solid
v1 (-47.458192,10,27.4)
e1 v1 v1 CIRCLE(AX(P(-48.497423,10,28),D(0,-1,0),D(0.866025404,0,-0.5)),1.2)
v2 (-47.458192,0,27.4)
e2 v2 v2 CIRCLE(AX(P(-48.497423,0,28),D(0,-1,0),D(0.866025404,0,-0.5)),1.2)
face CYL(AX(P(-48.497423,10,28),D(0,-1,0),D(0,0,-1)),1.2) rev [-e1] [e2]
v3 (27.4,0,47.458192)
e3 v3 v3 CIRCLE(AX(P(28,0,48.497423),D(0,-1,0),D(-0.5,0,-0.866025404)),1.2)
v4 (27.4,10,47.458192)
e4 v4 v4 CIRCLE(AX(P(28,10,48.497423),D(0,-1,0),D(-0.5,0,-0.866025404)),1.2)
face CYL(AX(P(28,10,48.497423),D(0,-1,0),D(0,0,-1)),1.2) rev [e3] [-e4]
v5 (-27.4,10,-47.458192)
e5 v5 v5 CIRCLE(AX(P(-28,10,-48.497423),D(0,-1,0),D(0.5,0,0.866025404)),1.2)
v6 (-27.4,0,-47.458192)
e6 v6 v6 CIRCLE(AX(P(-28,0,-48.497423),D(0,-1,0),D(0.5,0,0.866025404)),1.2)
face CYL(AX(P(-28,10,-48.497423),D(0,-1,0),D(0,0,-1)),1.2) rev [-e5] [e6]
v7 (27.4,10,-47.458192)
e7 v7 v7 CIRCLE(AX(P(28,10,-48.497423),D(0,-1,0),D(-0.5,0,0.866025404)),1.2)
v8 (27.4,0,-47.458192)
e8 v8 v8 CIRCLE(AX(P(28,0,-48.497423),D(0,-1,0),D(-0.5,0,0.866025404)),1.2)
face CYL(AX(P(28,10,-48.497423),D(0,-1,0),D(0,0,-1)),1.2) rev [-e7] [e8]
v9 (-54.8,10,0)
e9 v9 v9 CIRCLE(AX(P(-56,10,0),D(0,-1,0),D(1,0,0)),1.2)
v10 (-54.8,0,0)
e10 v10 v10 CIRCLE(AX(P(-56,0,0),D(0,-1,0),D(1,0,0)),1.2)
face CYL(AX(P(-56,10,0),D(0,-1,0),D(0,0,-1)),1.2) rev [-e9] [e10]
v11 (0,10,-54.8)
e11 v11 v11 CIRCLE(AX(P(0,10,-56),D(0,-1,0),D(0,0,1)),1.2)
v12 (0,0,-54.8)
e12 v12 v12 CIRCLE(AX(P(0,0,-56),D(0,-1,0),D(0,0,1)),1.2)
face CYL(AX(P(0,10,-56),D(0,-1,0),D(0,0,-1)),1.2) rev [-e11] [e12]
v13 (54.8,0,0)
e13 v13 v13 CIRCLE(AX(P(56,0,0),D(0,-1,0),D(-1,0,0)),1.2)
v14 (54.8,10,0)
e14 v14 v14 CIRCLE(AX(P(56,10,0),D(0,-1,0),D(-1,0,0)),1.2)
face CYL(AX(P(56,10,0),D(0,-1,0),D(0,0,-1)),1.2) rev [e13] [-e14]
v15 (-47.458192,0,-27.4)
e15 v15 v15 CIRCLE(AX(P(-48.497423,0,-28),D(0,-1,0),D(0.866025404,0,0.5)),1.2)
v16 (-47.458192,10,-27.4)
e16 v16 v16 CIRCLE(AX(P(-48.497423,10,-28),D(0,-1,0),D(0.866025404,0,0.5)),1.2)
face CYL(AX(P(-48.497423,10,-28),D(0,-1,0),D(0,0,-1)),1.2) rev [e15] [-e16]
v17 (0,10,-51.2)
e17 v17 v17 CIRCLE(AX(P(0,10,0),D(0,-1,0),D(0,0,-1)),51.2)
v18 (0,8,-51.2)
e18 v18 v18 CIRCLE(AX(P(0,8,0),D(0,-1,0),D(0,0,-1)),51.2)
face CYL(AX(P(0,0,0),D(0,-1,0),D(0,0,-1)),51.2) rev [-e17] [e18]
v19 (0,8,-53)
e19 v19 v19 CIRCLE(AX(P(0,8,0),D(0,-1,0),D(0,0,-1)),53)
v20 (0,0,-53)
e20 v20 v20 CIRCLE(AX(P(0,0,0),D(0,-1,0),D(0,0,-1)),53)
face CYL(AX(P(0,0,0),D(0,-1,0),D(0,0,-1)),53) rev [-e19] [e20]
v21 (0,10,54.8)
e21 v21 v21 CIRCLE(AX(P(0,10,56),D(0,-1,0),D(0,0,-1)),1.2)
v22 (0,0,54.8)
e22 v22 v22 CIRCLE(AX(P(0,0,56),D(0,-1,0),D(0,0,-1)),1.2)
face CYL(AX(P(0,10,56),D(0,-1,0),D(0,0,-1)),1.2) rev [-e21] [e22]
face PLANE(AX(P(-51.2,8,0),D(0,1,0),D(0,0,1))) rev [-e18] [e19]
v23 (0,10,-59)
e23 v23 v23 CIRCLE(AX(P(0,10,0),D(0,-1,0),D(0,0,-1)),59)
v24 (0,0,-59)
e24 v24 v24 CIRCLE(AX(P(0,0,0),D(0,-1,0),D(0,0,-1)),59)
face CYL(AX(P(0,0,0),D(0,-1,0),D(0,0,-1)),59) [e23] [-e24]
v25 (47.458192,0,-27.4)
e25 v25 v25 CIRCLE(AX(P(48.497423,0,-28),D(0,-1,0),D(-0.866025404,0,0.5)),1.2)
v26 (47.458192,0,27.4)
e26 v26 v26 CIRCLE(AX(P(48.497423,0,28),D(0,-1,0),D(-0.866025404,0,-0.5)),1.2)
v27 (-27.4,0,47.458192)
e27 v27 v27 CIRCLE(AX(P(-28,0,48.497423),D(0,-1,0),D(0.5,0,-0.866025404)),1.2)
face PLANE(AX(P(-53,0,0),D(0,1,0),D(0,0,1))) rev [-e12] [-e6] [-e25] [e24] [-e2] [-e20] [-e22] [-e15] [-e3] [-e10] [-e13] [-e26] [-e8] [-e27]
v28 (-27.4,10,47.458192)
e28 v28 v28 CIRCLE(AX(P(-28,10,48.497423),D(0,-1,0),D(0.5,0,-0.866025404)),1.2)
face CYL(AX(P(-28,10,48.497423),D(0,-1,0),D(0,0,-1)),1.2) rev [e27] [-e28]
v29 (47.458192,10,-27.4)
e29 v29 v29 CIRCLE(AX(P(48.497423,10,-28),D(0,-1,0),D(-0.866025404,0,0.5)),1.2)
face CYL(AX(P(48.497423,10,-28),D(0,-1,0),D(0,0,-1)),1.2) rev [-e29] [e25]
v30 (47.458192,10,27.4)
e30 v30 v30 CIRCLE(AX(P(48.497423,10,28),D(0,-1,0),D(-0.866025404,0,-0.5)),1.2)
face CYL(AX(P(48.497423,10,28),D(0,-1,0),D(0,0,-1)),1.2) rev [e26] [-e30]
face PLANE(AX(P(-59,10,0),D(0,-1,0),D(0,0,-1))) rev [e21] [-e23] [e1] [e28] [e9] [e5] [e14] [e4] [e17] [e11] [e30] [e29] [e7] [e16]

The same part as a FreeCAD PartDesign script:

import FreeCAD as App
import Part
import Sketcher
Q = App.Units.Quantity

doc = App.newDocument("Part")
body = doc.addObject("PartDesign::Body", "Body")

sketch1 = body.newObject("Sketcher::SketchObject", "Sketch")
sketch1.AttachmentSupport = (doc.getObject("XY_Plane"), [""])
sketch1.MapMode = "FlatFace"
sketch1.addGeometry([
    Part.LineSegment(App.Vector(-59, 0, 0), App.Vector(-53, 0, 0)),
    Part.LineSegment(App.Vector(-53, 0, 0), App.Vector(-53, 8, 0)),
    Part.LineSegment(App.Vector(-53, 8, 0), App.Vector(-51.2, 8, 0)),
    Part.LineSegment(App.Vector(-51.2, 8, 0), App.Vector(-51.2, 10, 0)),
    Part.LineSegment(App.Vector(-51.2, 10, 0), App.Vector(-59, 10, 0)),
    Part.LineSegment(App.Vector(-59, 10, 0), App.Vector(-59, 0, 0)),
], False)
sketch1.addConstraint([
    Sketcher.Constraint("Coincident", 0, 2, 1, 1),
    Sketcher.Constraint("Coincident", 1, 2, 2, 1),
    Sketcher.Constraint("Coincident", 2, 2, 3, 1),
    Sketcher.Constraint("Coincident", 3, 2, 4, 1),
    Sketcher.Constraint("Coincident", 4, 2, 5, 1),
    Sketcher.Constraint("Coincident", 5, 2, 0, 1),
    Sketcher.Constraint("Horizontal", 0),
    Sketcher.Constraint("Vertical", 1),
    Sketcher.Constraint("Horizontal", 2),
    Sketcher.Constraint("Vertical", 3),
    Sketcher.Constraint("Horizontal", 4),
    Sketcher.Constraint("Vertical", 5),
    Sketcher.Constraint("PointOnObject", 0, 2, -1),
    Sketcher.Constraint("DistanceX", 0, 1, 0, 2, Q("6 mm")),
    Sketcher.Constraint("DistanceY", 1, 1, 1, 2, Q("8 mm")),
    Sketcher.Constraint("DistanceY", 3, 1, 3, 2, Q("2 mm")),
    Sketcher.Constraint("DistanceX", 2, 1, 2, 2, Q("1.8 mm")),
    Sketcher.Constraint("DistanceX", 0, 2, -1, 1, Q("53 mm")),
])
revolution = body.newObject("PartDesign::Revolution", "Revolution")
revolution.Profile = sketch1
revolution.ReferenceAxis = (sketch1, ["V_Axis"])
revolution.Angle = 360

sketch2 = body.newObject("Sketcher::SketchObject", "Sketch001")
sketch2.AttachmentSupport = (doc.getObject("XZ_Plane"), [""])
sketch2.MapMode = "FlatFace"
sketch2.addGeometry(Part.Circle(App.Vector(0, 56, 0), App.Vector(0, 0, 1), 1.2), False)
sketch2.addConstraint([
    Sketcher.Constraint("PointOnObject", 0, 3, -2),
    Sketcher.Constraint("Diameter", 0, Q("2.4 mm")),
    Sketcher.Constraint("DistanceY", -1, 1, 0, 3, Q("56 mm")),
])
pocket1 = body.newObject("PartDesign::Pocket", "Pocket")
pocket1.Profile = sketch2
pocket1.Length = 10
doc.recompute()

polarpattern = body.newObject("PartDesign::PolarPattern", "PolarPattern")
polarpattern.Originals = [pocket1]
polarpattern.Axis = (doc.getObject("Y_Axis"), [""])
polarpattern.Angle = 360
polarpattern.Occurrences = 12
body.Tip = polarpattern

doc.recompute()
